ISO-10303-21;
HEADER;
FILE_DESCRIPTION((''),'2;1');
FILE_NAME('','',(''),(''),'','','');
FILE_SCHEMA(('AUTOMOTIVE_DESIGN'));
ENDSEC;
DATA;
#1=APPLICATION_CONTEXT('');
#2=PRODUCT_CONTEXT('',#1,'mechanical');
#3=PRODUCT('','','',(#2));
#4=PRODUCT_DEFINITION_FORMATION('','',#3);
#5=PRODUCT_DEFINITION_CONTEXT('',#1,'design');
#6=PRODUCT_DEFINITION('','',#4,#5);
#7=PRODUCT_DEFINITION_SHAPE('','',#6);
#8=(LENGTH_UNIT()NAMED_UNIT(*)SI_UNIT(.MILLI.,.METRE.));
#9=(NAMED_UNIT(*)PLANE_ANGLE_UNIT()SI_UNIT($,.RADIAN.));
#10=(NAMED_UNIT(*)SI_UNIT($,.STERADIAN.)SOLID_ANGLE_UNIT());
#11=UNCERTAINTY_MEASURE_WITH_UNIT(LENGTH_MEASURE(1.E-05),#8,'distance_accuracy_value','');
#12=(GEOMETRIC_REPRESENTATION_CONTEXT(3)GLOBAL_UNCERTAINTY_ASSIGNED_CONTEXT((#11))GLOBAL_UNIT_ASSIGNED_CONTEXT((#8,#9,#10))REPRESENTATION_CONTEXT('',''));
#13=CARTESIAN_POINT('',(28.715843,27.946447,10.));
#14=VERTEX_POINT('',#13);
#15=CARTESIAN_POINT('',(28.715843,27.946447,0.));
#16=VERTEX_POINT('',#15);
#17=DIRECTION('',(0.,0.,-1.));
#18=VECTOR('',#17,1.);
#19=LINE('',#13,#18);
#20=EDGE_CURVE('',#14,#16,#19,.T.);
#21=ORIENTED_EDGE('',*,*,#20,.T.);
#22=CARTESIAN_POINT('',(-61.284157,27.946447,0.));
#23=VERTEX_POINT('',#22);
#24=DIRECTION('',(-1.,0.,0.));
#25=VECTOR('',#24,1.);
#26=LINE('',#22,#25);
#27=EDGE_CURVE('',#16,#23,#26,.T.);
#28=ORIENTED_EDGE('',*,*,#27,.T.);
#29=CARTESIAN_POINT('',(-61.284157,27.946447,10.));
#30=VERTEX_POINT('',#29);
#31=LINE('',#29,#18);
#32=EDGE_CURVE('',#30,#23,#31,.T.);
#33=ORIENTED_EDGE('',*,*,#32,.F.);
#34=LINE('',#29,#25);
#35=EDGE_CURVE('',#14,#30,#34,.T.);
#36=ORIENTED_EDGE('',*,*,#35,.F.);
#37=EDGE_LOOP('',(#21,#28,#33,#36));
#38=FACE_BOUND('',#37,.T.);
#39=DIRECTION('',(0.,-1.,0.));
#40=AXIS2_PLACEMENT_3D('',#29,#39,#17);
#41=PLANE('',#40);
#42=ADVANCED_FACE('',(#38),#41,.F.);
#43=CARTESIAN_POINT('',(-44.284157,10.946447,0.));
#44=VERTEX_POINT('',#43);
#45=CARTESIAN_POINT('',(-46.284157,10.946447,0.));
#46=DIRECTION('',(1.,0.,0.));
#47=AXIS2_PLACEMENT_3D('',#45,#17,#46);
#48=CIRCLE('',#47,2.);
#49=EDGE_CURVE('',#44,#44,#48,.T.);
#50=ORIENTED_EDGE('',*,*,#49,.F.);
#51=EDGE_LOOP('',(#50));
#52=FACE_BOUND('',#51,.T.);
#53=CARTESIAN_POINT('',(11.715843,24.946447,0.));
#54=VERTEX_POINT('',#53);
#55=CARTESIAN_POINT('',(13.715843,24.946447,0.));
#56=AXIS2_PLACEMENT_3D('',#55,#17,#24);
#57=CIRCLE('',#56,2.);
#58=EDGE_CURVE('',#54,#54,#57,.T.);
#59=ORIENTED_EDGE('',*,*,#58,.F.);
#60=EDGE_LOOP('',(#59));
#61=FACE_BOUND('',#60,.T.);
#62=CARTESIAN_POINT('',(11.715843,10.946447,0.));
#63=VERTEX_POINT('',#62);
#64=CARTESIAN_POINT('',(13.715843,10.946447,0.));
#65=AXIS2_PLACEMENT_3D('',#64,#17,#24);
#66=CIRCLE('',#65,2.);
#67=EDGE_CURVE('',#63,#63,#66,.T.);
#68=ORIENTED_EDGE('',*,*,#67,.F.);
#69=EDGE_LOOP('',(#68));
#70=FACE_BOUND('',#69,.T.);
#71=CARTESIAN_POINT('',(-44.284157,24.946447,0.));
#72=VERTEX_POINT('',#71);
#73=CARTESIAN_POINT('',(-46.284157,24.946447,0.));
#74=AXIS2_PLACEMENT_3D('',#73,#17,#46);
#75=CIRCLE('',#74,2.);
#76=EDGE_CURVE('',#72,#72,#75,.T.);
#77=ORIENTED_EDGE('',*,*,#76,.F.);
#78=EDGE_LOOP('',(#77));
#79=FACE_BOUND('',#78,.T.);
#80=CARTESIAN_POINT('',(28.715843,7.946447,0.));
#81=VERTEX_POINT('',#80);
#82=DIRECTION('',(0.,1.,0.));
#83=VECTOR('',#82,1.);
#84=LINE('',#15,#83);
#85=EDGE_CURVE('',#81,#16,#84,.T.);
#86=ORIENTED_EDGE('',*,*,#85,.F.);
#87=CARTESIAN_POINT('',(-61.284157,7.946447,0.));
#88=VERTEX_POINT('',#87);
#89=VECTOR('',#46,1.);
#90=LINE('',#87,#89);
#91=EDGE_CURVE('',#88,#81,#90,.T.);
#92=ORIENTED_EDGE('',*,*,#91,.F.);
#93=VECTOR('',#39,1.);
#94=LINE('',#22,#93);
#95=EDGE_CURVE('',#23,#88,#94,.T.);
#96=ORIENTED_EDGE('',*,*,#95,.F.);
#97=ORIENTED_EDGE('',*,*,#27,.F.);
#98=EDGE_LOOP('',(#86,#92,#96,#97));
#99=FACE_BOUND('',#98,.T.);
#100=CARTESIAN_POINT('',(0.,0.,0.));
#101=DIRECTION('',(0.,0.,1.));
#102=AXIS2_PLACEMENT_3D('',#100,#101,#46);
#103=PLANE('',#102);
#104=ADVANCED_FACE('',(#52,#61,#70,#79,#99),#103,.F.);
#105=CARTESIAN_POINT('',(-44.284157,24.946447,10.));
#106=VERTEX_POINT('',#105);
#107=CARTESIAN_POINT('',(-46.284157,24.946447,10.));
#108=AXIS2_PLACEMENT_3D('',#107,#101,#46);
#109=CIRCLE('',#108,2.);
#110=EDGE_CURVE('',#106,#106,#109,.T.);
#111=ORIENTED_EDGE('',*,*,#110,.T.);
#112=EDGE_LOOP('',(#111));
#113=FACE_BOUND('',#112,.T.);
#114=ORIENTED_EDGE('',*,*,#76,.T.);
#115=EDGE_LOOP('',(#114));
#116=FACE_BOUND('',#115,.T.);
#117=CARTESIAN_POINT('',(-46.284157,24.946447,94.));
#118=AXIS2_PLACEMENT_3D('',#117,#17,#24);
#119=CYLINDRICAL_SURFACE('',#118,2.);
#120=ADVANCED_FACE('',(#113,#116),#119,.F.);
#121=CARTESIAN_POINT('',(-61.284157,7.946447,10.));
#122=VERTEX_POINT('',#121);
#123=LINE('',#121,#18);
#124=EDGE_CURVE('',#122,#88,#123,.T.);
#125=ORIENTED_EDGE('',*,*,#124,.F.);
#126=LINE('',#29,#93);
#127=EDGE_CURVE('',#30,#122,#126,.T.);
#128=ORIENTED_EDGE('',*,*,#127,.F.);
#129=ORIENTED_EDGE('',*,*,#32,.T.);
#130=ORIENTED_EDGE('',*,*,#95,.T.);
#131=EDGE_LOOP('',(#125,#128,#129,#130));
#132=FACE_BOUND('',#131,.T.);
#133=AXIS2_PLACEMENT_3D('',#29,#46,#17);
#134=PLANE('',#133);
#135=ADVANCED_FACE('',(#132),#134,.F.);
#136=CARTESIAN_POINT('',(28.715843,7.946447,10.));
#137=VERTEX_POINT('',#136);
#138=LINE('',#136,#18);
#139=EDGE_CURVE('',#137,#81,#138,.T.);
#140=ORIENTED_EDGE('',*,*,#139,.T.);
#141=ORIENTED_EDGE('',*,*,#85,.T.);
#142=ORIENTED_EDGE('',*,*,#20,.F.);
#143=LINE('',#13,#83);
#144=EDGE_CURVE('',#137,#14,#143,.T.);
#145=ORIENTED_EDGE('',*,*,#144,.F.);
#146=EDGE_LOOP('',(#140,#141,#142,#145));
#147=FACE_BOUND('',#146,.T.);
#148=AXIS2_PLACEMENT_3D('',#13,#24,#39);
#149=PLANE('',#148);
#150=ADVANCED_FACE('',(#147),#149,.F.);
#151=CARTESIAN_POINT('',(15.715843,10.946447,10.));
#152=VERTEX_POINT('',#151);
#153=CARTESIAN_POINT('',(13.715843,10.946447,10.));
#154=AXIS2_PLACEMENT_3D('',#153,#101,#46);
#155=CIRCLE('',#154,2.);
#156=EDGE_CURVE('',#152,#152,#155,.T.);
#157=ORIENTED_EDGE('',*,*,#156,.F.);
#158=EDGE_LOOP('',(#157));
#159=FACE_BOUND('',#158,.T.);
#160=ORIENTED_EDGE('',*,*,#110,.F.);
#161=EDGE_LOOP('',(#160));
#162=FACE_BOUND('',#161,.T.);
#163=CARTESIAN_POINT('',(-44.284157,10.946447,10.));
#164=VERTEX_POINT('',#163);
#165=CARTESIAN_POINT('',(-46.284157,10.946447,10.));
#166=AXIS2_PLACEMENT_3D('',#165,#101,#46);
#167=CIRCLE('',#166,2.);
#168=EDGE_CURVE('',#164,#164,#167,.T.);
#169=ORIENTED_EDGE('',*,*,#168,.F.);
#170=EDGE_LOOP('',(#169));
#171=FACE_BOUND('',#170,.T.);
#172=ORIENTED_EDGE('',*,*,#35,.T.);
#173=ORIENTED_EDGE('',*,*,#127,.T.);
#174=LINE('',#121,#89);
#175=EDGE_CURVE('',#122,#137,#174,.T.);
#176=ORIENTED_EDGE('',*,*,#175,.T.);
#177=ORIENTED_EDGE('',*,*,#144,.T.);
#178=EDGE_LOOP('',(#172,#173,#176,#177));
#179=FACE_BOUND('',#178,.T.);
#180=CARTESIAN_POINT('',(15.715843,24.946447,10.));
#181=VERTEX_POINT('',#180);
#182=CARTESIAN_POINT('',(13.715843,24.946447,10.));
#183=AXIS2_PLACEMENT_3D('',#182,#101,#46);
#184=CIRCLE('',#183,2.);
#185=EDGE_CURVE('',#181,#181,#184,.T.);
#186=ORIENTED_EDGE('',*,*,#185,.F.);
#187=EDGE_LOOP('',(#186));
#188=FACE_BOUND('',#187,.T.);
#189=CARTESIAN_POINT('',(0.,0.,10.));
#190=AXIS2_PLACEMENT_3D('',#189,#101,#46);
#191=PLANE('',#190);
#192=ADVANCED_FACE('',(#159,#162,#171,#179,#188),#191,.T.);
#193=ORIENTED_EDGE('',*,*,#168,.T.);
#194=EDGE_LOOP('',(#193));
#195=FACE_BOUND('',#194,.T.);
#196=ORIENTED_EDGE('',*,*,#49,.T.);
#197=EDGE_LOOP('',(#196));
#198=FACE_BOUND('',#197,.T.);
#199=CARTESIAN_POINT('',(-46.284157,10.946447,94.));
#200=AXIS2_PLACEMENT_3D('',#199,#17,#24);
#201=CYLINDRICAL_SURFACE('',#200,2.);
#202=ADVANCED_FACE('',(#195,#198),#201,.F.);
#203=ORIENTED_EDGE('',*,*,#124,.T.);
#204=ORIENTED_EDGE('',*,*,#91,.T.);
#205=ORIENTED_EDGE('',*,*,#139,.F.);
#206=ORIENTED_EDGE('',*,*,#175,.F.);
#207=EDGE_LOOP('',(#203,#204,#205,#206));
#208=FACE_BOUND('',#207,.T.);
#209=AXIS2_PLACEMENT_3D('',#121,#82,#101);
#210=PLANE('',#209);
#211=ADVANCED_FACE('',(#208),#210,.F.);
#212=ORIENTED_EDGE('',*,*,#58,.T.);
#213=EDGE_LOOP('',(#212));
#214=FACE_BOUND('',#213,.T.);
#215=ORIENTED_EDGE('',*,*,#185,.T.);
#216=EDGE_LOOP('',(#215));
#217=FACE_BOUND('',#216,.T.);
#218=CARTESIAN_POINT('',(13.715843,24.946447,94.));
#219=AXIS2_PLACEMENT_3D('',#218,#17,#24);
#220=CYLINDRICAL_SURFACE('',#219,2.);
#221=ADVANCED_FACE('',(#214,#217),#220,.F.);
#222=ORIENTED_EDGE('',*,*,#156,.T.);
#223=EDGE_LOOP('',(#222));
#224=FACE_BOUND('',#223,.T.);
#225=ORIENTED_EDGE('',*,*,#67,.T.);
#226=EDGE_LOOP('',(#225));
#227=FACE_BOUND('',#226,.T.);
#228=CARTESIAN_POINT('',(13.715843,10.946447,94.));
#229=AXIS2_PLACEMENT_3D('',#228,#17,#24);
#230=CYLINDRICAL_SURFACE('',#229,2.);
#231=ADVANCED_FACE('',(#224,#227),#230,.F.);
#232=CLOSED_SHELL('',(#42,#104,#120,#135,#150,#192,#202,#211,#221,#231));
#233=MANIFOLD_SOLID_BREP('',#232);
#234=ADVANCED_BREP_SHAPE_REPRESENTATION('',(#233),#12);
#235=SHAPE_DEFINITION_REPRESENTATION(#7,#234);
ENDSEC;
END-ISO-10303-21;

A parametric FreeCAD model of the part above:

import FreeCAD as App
import Part
import Sketcher

V = App.Vector
Q = App.Units.Quantity

doc = App.newDocument("Part")
body = doc.addObject("PartDesign::Body", "Body")

sketch1 = doc.addObject("Sketcher::SketchObject", "Sketch")
body.addObject(sketch1)
sketch1.AttachmentSupport = (doc.XY_Plane, [""])
sketch1.MapMode = "FlatFace"
sketch1.addGeometry(Part.LineSegment(V(-61, 28, 0), V(-61, 8, 0)), False)
sketch1.addGeometry(Part.LineSegment(V(-61, 8, 0), V(29, 8, 0)), False)
sketch1.addGeometry(Part.LineSegment(V(29, 8, 0), V(29, 28, 0)), False)
sketch1.addGeometry(Part.LineSegment(V(29, 28, 0), V(-61, 28, 0)), False)
sketch1.addConstraint(Sketcher.Constraint("Coincident", 0, 2, 1, 1))
sketch1.addConstraint(Sketcher.Constraint("Coincident", 1, 2, 2, 1))
sketch1.addConstraint(Sketcher.Constraint("Coincident", 2, 2, 3, 1))
sketch1.addConstraint(Sketcher.Constraint("Coincident", 3, 2, 0, 1))
sketch1.addConstraint(Sketcher.Constraint("Vertical", 0))
sketch1.addConstraint(Sketcher.Constraint("Horizontal", 1))
sketch1.addConstraint(Sketcher.Constraint("Vertical", 2))
sketch1.addConstraint(Sketcher.Constraint("Horizontal", 3))
sketch1.addConstraint(Sketcher.Constraint("DistanceX", 1, 1, 1, 2, Q("90 mm")))
sketch1.addConstraint(Sketcher.Constraint("DistanceY", 0, 2, 0, 1, Q("20 mm")))
sketch1.addConstraint(Sketcher.Constraint("DistanceX", 0, 2, -1, 1, Q("61.284157 mm")))
sketch1.addConstraint(Sketcher.Constraint("DistanceY", -1, 1, 0, 2, Q("7.946447 mm")))
pad1 = doc.addObject("PartDesign::Pad", "Pad")
body.addObject(pad1)
pad1.Profile = sketch1
pad1.Length = 10

sketch2 = doc.addObject("Sketcher::SketchObject", "Sketch001")
body.addObject(sketch2)
sketch2.AttachmentSupport = (doc.XY_Plane, [""])
sketch2.MapMode = "FlatFace"
sketch2.addGeometry(Part.Circle(V(13.7, 24.9, 0), V(0, 0, 1), 2), False)
sketch2.addGeometry(Part.Circle(V(13.7, 10.9, 0), V(0, 0, 1), 2), False)
sketch2.addGeometry(Part.Circle(V(-46.3, 10.9, 0), V(0, 0, 1), 2), False)
sketch2.addGeometry(Part.Circle(V(-46.3, 24.9, 0), V(0, 0, 1), 2), False)
sketch2.addConstraint(Sketcher.Constraint("Equal", 0, 1))
sketch2.addConstraint(Sketcher.Constraint("Equal", 1, 2))
sketch2.addConstraint(Sketcher.Constraint("Equal", 2, 3))
sketch2.addConstraint(Sketcher.Constraint("Horizontal", 1, 3, 2, 3))
sketch2.addConstraint(Sketcher.Constraint("Horizontal", 0, 3, 3, 3))
sketch2.addConstraint(Sketcher.Constraint("Vertical", 0, 3, 1, 3))
sketch2.addConstraint(Sketcher.Constraint("Vertical", 2, 3, 3, 3))
sketch2.addConstraint(Sketcher.Constraint("Diameter", 0, Q("4 mm")))
sketch2.addConstraint(Sketcher.Constraint("DistanceY", 1, 3, 0, 3, Q("14 mm")))
sketch2.addConstraint(Sketcher.Constraint("DistanceX", 2, 3, 1, 3, Q("60 mm")))
sketch2.addConstraint(Sketcher.Constraint("DistanceX", -1, 1, 0, 3, Q("13.715843 mm")))
sketch2.addConstraint(Sketcher.Constraint("DistanceY", -1, 1, 0, 3, Q("24.946447 mm")))
pocket1 = doc.addObject("PartDesign::Pocket", "Pocket")
body.addObject(pocket1)
pocket1.Profile = sketch2
pocket1.Length = 94
pocket1.Reversed = True

doc.recompute()
